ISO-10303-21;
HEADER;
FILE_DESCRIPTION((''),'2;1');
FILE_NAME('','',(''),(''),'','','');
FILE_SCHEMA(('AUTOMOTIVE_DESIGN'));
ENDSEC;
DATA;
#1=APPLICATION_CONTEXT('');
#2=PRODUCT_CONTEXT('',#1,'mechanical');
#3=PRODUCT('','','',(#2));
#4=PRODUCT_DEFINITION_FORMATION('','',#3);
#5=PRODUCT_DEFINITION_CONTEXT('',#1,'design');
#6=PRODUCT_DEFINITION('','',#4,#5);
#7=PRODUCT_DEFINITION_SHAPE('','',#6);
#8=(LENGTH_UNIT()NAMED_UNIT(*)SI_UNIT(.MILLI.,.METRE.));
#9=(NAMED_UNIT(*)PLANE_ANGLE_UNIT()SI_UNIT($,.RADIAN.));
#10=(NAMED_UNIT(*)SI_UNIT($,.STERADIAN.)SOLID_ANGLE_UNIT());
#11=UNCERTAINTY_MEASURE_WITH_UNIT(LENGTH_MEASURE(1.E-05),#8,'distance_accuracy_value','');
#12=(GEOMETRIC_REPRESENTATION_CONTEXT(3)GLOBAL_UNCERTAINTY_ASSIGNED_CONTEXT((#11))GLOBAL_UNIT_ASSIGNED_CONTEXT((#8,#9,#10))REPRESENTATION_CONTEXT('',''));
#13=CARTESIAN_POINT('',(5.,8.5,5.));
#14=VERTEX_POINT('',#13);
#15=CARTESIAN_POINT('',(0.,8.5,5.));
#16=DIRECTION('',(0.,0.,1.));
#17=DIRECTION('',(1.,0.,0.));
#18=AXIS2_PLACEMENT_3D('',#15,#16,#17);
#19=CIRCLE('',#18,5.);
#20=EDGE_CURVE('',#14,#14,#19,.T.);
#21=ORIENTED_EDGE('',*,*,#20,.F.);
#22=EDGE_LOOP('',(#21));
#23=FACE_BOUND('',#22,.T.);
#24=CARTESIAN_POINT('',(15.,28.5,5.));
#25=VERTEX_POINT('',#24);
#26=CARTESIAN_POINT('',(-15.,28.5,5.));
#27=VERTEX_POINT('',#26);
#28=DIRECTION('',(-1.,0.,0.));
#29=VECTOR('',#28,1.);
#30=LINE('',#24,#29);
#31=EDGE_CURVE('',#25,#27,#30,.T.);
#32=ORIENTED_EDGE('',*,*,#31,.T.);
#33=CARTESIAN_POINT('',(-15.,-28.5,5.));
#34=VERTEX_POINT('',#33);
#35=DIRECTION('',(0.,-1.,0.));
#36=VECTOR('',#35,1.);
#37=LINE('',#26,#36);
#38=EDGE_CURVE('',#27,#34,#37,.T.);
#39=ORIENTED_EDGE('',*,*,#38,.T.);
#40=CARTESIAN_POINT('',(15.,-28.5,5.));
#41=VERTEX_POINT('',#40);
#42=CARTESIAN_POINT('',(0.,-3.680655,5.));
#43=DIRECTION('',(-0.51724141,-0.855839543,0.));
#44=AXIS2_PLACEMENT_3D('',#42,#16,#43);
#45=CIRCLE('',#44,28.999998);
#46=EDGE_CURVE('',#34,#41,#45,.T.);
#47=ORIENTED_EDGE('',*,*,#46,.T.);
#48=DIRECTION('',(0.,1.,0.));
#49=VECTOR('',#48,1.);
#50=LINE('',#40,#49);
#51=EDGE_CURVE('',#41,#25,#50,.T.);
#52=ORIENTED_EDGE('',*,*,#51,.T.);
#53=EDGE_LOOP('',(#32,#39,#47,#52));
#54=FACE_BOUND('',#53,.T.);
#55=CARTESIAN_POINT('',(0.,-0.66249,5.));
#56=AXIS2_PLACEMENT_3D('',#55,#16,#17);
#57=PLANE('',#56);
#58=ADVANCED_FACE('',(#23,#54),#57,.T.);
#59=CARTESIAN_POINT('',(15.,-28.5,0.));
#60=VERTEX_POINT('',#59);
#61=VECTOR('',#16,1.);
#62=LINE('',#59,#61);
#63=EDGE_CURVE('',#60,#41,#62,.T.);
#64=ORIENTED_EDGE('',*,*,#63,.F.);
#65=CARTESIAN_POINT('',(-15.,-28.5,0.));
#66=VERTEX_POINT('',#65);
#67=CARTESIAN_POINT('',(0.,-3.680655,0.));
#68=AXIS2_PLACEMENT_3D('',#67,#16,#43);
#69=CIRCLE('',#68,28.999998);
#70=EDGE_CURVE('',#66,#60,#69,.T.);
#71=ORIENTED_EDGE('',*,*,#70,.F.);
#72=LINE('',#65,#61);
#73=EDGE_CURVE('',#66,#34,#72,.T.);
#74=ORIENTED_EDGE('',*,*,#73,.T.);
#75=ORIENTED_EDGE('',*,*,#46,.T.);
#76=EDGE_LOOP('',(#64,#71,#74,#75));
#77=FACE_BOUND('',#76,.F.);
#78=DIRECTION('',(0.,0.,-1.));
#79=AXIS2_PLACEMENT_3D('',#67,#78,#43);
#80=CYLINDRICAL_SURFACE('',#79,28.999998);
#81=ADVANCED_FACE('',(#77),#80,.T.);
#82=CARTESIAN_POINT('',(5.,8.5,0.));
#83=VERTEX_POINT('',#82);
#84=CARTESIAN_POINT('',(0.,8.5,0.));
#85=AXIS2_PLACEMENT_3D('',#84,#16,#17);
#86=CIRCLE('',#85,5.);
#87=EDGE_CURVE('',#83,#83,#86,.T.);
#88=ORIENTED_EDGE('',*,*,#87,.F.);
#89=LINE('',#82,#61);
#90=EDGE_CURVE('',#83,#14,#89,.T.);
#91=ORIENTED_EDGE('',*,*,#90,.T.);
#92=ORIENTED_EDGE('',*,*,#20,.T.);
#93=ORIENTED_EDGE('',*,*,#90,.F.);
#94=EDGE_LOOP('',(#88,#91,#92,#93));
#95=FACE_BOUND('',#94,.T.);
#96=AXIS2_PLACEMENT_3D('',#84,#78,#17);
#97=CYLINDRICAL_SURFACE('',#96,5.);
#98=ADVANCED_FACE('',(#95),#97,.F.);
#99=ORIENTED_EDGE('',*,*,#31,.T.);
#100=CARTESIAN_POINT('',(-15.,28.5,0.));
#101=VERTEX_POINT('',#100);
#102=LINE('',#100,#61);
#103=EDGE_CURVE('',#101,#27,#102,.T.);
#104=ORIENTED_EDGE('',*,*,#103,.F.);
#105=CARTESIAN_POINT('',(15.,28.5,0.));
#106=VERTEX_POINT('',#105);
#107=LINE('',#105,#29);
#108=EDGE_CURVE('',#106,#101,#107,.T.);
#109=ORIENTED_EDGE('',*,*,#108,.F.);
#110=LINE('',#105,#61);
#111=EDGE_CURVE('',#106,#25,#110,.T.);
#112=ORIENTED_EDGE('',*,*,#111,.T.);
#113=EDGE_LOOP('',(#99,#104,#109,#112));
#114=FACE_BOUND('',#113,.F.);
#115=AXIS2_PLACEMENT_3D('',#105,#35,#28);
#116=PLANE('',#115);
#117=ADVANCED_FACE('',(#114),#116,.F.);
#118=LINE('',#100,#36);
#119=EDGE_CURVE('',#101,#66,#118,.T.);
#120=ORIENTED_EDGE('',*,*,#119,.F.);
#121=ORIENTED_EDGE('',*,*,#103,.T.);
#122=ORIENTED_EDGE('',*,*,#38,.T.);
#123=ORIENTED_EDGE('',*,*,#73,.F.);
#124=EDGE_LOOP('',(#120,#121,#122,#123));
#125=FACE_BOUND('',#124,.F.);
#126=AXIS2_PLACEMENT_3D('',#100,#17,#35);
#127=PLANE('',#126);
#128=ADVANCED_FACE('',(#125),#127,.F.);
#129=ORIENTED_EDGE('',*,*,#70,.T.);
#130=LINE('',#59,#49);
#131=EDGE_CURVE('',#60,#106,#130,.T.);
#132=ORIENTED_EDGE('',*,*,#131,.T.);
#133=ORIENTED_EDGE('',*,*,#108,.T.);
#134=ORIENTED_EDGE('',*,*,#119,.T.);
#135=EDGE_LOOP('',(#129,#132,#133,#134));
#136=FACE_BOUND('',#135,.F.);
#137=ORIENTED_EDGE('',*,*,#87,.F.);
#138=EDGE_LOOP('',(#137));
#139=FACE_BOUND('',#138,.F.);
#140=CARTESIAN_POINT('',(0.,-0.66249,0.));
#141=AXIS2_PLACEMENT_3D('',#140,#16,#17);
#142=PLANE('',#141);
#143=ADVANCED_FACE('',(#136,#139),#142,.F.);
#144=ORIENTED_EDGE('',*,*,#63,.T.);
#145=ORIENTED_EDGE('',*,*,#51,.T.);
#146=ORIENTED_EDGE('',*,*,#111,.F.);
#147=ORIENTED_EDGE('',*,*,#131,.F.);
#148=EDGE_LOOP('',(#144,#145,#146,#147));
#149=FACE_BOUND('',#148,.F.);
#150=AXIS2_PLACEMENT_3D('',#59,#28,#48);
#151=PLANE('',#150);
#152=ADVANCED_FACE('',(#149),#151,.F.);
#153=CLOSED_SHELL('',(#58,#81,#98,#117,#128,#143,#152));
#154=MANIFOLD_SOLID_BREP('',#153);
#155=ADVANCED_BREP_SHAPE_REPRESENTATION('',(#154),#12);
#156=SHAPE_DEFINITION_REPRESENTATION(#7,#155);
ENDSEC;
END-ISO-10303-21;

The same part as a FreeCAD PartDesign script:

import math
import FreeCAD as App
import Part
import Sketcher

doc = App.newDocument("Part")
body = doc.addObject("PartDesign::Body", "Body")

# Sketch on XY plane
sketch1 = doc.addObject("Sketcher::SketchObject", "Sketch")
body.addObject(sketch1)
sketch1.AttachmentSupport = (doc.XY_Plane, [""])
sketch1.MapMode = "FlatFace"
sketch1.addGeometry(Part.LineSegment(App.Vector(15, -28.5, 0), App.Vector(15, 28.5, 0)), False)
sketch1.addGeometry(Part.LineSegment(App.Vector(15, 28.5, 0), App.Vector(-15, 28.5, 0)), False)
sketch1.addGeometry(Part.LineSegment(App.Vector(-15, 28.5, 0), App.Vector(-15, -28.5, 0)), False)
sketch1.addGeometry(Part.ArcOfCircle(Part.Circle(App.Vector(0, -3.680655, 0), App.Vector(0, 0, 1), 28.999998), math.radians(-121.147392), math.radians(-58.852608)), False)
sketch1.addGeometry(Part.Circle(App.Vector(0, 8.5, 0), App.Vector(0, 0, 1), 5), False)
sketch1.addConstraint(Sketcher.Constraint("Coincident", 0, 2, 1, 1))
sketch1.addConstraint(Sketcher.Constraint("Coincident", 1, 2, 2, 1))
sketch1.addConstraint(Sketcher.Constraint("Coincident", 2, 2, 3, 1))
sketch1.addConstraint(Sketcher.Constraint("Coincident", 3, 2, 0, 1))
sketch1.addConstraint(Sketcher.Constraint("Vertical", 0))
sketch1.addConstraint(Sketcher.Constraint("Horizontal", 1))
sketch1.addConstraint(Sketcher.Constraint("Vertical", 2))
sketch1.addConstraint(Sketcher.Constraint("Symmetric", 0, 2, 2, 2, -1, 1))
sketch1.addConstraint(Sketcher.Constraint("PointOnObject", 3, 3, -2))
sketch1.addConstraint(Sketcher.Constraint("PointOnObject", 4, 3, -2))
sketch1.addConstraint(Sketcher.Constraint("Diameter", 4, 10.0))
sketch1.addConstraint(Sketcher.Constraint("Radius", 3, 28.999998))
sketch1.addConstraint(Sketcher.Constraint("DistanceX", 1, 2, 1, 1, 30.0))
sketch1.addConstraint(Sketcher.Constraint("DistanceY", 0, 1, 0, 2, 57.0))
sketch1.addConstraint(Sketcher.Constraint("DistanceY", 4, 3, 0, 2, 20.0))
pad1 = doc.addObject("PartDesign::Pad", "Pad")
body.addObject(pad1)
pad1.Profile = sketch1
pad1.Length = 5

doc.recompute()
